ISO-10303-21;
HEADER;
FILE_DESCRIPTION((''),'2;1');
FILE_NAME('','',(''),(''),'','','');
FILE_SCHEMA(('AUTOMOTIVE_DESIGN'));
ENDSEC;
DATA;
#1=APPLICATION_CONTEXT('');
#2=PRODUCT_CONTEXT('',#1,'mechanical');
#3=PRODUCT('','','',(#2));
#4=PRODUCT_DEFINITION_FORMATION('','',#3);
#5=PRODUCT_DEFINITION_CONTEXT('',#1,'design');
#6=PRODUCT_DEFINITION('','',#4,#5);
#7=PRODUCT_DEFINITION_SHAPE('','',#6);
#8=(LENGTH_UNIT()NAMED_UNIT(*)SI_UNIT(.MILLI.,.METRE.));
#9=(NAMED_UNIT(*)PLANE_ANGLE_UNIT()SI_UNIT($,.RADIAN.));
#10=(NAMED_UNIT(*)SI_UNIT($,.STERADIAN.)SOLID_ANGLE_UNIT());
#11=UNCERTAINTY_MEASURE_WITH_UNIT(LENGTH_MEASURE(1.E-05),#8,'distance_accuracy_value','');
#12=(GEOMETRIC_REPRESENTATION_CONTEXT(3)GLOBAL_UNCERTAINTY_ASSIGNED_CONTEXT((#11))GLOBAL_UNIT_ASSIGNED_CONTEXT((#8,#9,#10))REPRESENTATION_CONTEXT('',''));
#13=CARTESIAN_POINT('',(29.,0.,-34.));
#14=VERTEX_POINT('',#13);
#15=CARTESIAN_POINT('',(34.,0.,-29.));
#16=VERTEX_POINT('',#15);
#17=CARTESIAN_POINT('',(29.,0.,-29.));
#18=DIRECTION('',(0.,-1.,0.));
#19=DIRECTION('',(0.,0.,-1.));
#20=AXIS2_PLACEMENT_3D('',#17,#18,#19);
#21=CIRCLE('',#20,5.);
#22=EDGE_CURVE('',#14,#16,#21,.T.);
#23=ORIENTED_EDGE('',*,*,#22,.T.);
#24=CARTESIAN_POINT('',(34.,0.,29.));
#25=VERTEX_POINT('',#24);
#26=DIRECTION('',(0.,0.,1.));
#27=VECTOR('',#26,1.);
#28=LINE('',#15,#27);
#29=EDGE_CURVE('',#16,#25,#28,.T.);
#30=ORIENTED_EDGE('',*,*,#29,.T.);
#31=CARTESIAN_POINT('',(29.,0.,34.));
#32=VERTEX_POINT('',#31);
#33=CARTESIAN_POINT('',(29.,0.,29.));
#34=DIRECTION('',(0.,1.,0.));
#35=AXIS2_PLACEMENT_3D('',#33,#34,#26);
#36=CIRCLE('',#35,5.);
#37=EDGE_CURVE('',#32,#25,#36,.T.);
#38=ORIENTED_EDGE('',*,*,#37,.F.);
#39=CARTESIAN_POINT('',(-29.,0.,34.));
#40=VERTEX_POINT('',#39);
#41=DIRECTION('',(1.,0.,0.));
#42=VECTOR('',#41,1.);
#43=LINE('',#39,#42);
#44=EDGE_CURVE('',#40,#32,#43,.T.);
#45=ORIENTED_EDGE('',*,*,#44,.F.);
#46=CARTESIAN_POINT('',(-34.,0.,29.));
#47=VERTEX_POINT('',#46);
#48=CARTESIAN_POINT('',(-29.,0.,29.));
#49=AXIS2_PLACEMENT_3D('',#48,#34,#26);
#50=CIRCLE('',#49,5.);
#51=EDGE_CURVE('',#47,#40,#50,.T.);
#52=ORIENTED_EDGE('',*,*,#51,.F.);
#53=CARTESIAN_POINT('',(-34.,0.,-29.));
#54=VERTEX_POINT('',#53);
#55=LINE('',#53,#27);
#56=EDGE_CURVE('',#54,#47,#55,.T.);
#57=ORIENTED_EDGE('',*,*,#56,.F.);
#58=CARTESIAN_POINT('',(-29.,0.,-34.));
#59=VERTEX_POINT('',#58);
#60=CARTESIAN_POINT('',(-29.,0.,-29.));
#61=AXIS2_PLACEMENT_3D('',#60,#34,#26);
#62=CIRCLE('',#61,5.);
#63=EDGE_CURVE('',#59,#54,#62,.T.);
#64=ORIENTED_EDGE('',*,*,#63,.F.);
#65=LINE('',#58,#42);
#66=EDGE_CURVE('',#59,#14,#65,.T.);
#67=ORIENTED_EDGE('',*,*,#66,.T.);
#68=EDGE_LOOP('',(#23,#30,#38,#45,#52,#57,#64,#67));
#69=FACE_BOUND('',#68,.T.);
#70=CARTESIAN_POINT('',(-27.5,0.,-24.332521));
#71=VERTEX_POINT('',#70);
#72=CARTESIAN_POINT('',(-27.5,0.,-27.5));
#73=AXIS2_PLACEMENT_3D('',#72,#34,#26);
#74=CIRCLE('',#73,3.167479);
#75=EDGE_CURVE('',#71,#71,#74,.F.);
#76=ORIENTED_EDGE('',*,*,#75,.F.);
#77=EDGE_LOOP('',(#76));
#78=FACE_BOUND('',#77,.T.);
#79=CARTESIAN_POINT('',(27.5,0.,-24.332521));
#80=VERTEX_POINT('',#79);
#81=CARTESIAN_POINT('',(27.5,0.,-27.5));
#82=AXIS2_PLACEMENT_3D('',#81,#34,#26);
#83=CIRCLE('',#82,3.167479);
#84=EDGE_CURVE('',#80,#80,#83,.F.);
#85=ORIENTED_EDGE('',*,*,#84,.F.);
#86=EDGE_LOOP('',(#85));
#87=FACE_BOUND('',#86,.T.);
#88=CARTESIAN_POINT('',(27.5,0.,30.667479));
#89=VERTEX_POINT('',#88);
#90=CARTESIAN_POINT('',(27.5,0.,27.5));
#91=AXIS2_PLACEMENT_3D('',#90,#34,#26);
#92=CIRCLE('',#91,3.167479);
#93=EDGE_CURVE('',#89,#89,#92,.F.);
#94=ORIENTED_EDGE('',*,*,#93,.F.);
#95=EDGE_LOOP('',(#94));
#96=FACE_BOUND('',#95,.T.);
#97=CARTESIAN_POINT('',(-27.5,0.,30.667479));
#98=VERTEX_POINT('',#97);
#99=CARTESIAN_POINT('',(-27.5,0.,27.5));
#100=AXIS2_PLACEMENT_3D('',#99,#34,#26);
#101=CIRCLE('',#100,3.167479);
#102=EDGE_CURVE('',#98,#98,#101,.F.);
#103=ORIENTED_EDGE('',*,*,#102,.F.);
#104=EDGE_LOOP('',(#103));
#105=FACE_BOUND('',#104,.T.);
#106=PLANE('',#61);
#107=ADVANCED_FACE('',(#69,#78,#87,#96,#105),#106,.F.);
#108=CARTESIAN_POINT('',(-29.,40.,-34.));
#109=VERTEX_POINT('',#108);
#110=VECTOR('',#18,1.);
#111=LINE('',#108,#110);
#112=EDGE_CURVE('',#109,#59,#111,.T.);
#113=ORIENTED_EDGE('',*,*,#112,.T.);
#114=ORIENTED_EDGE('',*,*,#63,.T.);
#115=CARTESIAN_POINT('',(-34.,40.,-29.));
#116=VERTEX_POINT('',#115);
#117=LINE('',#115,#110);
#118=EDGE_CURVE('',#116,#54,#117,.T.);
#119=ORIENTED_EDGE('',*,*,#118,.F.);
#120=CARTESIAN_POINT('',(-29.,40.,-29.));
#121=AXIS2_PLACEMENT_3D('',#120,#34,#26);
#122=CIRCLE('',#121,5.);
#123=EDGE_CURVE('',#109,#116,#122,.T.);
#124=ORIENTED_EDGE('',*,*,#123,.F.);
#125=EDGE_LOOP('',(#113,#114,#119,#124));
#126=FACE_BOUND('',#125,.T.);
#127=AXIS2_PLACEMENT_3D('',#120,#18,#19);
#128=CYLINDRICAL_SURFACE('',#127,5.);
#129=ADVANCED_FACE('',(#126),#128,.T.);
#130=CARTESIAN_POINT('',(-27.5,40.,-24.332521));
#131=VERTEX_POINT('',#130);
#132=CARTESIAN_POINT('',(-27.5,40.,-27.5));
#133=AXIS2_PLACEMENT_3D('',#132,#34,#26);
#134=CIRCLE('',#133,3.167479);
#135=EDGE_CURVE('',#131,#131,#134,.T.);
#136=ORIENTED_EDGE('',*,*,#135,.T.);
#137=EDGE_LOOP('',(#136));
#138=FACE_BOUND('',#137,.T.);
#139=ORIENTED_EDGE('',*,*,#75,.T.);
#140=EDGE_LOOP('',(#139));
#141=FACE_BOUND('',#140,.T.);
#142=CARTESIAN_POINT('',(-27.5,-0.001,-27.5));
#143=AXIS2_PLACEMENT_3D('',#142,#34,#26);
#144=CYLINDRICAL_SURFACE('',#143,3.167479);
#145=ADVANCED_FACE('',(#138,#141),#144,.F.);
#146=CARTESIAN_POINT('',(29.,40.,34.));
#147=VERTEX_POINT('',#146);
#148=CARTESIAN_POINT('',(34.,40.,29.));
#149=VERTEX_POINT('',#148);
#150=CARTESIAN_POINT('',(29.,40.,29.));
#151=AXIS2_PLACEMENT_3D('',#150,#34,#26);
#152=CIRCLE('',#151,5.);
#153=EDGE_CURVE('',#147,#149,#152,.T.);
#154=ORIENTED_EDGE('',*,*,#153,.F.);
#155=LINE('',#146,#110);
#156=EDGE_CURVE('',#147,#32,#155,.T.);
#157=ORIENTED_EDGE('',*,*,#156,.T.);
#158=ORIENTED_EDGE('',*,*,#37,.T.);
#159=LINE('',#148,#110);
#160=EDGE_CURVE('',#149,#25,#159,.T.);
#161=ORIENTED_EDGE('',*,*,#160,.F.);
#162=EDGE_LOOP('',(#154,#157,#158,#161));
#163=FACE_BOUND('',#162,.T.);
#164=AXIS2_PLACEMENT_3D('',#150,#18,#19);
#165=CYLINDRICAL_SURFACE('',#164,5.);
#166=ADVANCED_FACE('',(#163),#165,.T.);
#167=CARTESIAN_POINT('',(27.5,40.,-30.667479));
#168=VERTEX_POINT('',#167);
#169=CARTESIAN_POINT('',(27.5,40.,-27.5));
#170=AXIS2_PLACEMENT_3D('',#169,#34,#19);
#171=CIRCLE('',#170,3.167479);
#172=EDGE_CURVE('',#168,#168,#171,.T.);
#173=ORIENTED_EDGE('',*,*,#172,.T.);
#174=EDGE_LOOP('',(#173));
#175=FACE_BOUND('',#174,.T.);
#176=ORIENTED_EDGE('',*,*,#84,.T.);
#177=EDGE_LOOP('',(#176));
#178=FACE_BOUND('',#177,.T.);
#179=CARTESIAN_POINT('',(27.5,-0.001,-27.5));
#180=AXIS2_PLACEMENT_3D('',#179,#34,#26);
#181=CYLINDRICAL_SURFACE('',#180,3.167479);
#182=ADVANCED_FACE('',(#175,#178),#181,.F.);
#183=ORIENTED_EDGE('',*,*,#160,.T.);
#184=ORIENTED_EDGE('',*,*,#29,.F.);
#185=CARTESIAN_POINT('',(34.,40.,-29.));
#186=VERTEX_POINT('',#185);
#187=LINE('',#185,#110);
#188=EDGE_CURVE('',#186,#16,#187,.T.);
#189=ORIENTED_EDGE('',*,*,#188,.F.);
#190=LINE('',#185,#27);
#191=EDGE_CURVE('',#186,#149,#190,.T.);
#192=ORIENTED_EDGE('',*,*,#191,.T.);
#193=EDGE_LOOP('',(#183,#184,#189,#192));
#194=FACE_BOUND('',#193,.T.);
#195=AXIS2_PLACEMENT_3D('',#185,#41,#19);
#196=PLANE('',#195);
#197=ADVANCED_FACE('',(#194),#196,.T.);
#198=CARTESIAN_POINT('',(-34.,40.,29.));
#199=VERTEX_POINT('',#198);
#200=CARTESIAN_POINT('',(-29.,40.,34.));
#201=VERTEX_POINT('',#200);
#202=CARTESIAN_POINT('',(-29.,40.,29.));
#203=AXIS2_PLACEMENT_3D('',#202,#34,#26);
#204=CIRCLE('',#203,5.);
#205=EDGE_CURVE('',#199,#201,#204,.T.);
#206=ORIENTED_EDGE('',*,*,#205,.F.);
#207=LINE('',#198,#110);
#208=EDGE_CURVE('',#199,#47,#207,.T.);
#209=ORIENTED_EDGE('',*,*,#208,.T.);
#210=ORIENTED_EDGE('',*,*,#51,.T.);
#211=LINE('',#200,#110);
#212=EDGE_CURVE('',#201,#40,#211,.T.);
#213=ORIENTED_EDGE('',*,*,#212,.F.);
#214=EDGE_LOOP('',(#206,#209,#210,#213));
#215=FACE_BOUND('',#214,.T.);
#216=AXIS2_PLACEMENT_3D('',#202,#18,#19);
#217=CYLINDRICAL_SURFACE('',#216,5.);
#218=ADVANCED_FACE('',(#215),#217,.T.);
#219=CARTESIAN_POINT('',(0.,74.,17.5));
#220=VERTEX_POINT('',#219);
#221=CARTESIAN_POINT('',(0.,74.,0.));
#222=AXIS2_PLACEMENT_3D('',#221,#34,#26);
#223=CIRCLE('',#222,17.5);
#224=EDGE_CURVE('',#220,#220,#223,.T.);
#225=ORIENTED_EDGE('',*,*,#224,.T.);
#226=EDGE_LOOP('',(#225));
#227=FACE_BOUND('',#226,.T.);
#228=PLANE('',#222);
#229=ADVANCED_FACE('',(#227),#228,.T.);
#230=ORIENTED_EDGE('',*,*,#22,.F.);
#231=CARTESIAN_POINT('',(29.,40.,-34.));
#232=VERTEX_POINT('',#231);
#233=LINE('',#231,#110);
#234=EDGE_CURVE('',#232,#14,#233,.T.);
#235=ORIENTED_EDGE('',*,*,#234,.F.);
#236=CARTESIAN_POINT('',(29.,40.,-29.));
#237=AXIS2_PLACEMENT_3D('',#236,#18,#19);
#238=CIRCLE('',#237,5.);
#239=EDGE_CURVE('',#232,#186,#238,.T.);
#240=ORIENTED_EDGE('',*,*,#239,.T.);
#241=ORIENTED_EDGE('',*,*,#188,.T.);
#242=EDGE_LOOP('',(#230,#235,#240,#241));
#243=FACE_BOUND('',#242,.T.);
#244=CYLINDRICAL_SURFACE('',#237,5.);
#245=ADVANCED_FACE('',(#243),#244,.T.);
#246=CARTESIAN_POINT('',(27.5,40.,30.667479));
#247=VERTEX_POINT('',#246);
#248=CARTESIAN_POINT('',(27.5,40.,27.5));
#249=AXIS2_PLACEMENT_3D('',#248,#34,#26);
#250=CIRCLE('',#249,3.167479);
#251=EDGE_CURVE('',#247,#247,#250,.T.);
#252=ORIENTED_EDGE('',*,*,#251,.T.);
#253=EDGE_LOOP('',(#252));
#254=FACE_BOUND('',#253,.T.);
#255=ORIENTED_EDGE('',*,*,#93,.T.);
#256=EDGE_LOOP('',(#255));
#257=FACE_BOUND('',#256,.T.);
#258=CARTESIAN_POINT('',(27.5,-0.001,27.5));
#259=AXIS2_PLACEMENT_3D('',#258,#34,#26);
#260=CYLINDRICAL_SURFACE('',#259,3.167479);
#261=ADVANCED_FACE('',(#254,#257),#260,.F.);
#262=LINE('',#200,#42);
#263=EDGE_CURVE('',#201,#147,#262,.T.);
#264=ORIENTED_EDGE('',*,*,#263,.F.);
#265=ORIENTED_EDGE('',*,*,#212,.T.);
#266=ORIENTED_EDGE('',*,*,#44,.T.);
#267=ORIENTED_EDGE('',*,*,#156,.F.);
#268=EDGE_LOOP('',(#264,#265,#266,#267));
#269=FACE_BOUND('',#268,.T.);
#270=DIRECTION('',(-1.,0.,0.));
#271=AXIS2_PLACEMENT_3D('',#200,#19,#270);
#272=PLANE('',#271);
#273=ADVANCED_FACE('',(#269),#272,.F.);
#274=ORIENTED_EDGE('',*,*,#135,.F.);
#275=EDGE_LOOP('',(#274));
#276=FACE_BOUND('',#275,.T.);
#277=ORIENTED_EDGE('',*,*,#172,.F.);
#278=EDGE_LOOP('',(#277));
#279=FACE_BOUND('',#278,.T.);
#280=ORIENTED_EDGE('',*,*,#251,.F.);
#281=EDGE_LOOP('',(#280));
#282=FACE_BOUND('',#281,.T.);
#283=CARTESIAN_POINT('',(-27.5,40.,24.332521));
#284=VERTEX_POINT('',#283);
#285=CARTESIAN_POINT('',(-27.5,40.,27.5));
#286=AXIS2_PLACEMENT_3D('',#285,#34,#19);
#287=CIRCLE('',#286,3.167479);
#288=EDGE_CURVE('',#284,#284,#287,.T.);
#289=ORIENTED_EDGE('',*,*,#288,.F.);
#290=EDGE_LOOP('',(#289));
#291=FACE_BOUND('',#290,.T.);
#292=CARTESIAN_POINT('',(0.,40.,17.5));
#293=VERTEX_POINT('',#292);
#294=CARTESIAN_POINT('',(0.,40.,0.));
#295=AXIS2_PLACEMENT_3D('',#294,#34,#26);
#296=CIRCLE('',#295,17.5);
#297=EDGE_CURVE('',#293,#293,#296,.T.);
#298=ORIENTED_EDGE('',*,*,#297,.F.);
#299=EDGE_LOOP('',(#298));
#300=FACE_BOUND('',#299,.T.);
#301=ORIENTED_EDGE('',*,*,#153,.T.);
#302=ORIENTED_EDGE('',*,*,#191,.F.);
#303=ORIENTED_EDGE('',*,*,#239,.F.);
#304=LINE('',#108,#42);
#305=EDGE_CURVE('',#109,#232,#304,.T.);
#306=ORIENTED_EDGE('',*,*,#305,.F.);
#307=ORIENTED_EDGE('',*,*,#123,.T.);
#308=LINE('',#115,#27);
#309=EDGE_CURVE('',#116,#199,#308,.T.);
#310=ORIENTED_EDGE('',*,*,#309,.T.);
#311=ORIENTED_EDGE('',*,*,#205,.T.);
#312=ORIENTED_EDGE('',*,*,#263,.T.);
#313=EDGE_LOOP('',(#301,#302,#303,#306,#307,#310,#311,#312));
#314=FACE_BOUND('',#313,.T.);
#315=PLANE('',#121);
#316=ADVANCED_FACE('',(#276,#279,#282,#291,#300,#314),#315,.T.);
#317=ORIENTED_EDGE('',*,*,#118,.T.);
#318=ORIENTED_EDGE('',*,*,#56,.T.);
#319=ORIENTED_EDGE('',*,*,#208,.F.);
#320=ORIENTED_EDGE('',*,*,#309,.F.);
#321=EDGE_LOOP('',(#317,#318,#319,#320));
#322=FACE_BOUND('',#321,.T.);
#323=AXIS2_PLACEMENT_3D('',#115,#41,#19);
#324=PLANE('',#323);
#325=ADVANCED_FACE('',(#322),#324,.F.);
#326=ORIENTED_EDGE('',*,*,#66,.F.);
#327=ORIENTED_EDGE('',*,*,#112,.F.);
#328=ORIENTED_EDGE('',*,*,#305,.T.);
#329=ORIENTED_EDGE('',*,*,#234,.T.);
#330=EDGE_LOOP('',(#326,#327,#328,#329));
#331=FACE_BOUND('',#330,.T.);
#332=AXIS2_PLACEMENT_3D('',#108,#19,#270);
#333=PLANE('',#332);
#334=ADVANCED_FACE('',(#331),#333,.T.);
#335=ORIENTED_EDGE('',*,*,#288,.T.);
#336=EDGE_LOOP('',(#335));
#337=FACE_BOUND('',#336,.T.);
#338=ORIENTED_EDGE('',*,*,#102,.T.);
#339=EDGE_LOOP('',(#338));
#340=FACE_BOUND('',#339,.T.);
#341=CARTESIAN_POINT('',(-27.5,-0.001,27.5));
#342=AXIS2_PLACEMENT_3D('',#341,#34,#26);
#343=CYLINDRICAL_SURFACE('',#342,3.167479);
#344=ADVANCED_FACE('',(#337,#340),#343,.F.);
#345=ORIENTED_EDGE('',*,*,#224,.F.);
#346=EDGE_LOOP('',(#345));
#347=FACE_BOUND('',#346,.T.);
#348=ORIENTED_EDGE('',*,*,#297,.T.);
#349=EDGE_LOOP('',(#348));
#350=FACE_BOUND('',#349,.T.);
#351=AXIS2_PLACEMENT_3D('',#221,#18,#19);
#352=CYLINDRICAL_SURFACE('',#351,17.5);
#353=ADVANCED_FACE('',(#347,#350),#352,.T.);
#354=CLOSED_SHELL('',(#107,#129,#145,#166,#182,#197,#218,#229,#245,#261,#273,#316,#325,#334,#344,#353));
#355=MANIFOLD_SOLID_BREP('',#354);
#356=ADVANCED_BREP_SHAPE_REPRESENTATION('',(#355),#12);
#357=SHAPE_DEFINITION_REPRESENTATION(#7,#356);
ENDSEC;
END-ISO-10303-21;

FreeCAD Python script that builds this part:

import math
import FreeCAD as App
import Part
import Sketcher
from FreeCAD import Vector
Q = App.Units.Quantity

doc = App.newDocument("Part")
body = doc.addObject("PartDesign::Body", "Body")

sketch1 = doc.addObject("Sketcher::SketchObject", "Sketch")
body.addObject(sketch1)
sketch1.AttachmentSupport = (doc.XZ_Plane, [""])
sketch1.MapMode = "FlatFace"
sketch1.addGeometry([
    Part.LineSegment(Vector(29, -34, 0), Vector(-29, -34, 0)),
    Part.ArcOfCircle(Part.Circle(Vector(-29, -29, 0), Vector(0, 0, 1), 5), math.radians(180), math.radians(270)),
    Part.LineSegment(Vector(-34, -29, 0), Vector(-34, 29, 0)),
    Part.ArcOfCircle(Part.Circle(Vector(-29, 29, 0), Vector(0, 0, 1), 5), math.radians(90), math.radians(180)),
    Part.LineSegment(Vector(-29, 34, 0), Vector(29, 34, 0)),
    Part.ArcOfCircle(Part.Circle(Vector(29, 29, 0), Vector(0, 0, 1), 5), math.radians(0), math.radians(90)),
    Part.LineSegment(Vector(34, 29, 0), Vector(34, -29, 0)),
    Part.ArcOfCircle(Part.Circle(Vector(29, -29, 0), Vector(0, 0, 1), 5), math.radians(-90), math.radians(0)),
], False)
sketch1.addConstraint([
    Sketcher.Constraint("Tangent", 0, 2, 1, 2),
    Sketcher.Constraint("Tangent", 1, 1, 2, 1),
    Sketcher.Constraint("Tangent", 2, 2, 3, 2),
    Sketcher.Constraint("Tangent", 3, 1, 4, 1),
    Sketcher.Constraint("Tangent", 4, 2, 5, 2),
    Sketcher.Constraint("Tangent", 5, 1, 6, 1),
    Sketcher.Constraint("Tangent", 6, 2, 7, 2),
    Sketcher.Constraint("Tangent", 7, 1, 0, 1),
    Sketcher.Constraint("Horizontal", 0),
    Sketcher.Constraint("Vertical", 2),
    Sketcher.Constraint("Horizontal", 4),
    Sketcher.Constraint("Vertical", 6),
    Sketcher.Constraint("Equal", 1, 3),
    Sketcher.Constraint("Equal", 3, 5),
    Sketcher.Constraint("Equal", 5, 7),
    Sketcher.Constraint("Symmetric", 1, 3, 5, 3, -1, 1),
    Sketcher.Constraint("Equal", 4, 2),
    Sketcher.Constraint("Radius", 1, Q("5 mm")),
    Sketcher.Constraint("DistanceX", 0, 2, 0, 1, Q("58 mm")),
])
pad1 = doc.addObject("PartDesign::Pad", "Pad")
body.addObject(pad1)
pad1.Profile = sketch1
pad1.Length = 40
pad1.Reversed = True

sketch2 = doc.addObject("Sketcher::SketchObject", "Sketch001")
body.addObject(sketch2)
sketch2.AttachmentSupport = (doc.XZ_Plane, [""])
sketch2.MapMode = "FlatFace"
sketch2.AttachmentOffset = App.Placement(Vector(0, 0, -40), App.Rotation())
sketch2.addGeometry(Part.Circle(Vector(0, 0, 0), Vector(0, 0, 1), 18), False)
sketch2.addConstraint([
    Sketcher.Constraint("Coincident", 0, 3, -1, 1),
    Sketcher.Constraint("Diameter", 0, Q("35 mm")),
])
pad2 = doc.addObject("PartDesign::Pad", "Pad001")
body.addObject(pad2)
pad2.Profile = sketch2
pad2.Length = 34
pad2.Reversed = True

sketch3 = doc.addObject("Sketcher::SketchObject", "Sketch002")
body.addObject(sketch3)
sketch3.AttachmentSupport = (doc.XZ_Plane, [""])
sketch3.MapMode = "FlatFace"
sketch3.AttachmentOffset = App.Placement(Vector(0, 0, -40), App.Rotation())
sketch3.addGeometry(Part.Circle(Vector(-27.5, -27.5, 0), Vector(0, 0, 1), 3.2), False)
sketch3.addConstraint([
    Sketcher.Constraint("DistanceX", 0, 3, -1, 1, Q("27.5 mm")),
    Sketcher.Constraint("DistanceY", 0, 3, -1, 1, Q("27.5 mm")),
    Sketcher.Constraint("Diameter", 0, Q("6.334959 mm")),
])
pocket1 = doc.addObject("PartDesign::Pocket", "Pocket")
body.addObject(pocket1)
pocket1.Profile = sketch3
pocket1.Type = "UpToFirst"
pocket1.Reversed = True

sketch4 = doc.addObject("Sketcher::SketchObject", "Sketch003")
body.addObject(sketch4)
sketch4.AttachmentSupport = (doc.XZ_Plane, [""])
sketch4.MapMode = "FlatFace"
sketch4.AttachmentOffset = App.Placement(Vector(0, 0, -40), App.Rotation())
sketch4.addGeometry(Part.Circle(Vector(-27.5, 27.5, 0), Vector(0, 0, 1), 3.2), False)
sketch4.addConstraint([
    Sketcher.Constraint("DistanceX", 0, 3, -1, 1, Q("27.5 mm")),
    Sketcher.Constraint("DistanceY", -1, 1, 0, 3, Q("27.5 mm")),
    Sketcher.Constraint("Diameter", 0, Q("6.334959 mm")),
])
pocket2 = doc.addObject("PartDesign::Pocket", "Pocket001")
body.addObject(pocket2)
pocket2.Profile = sketch4
pocket2.Type = "UpToFirst"
pocket2.Reversed = True

sketch5 = doc.addObject("Sketcher::SketchObject", "Sketch004")
body.addObject(sketch5)
sketch5.AttachmentSupport = (doc.XZ_Plane, [""])
sketch5.MapMode = "FlatFace"
sketch5.AttachmentOffset = App.Placement(Vector(0, 0, -40), App.Rotation())
sketch5.addGeometry(Part.Circle(Vector(27.5, 27.5, 0), Vector(0, 0, 1), 3.2), False)
sketch5.addConstraint([
    Sketcher.Constraint("DistanceX", -1, 1, 0, 3, Q("27.5 mm")),
    Sketcher.Constraint("DistanceY", -1, 1, 0, 3, Q("27.5 mm")),
    Sketcher.Constraint("Diameter", 0, Q("6.334959 mm")),
])
pocket3 = doc.addObject("PartDesign::Pocket", "Pocket002")
body.addObject(pocket3)
pocket3.Profile = sketch5
pocket3.Type = "UpToFirst"
pocket3.Reversed = True

sketch6 = doc.addObject("Sketcher::SketchObject", "Sketch005")
body.addObject(sketch6)
sketch6.AttachmentSupport = (doc.XZ_Plane, [""])
sketch6.MapMode = "FlatFace"
sketch6.AttachmentOffset = App.Placement(Vector(0, 0, -40), App.Rotation())
sketch6.addGeometry(Part.Circle(Vector(27.5, -27.5, 0), Vector(0, 0, 1), 3.2), False)
sketch6.addConstraint([
    Sketcher.Constraint("DistanceX", -1, 1, 0, 3, Q("27.5 mm")),
    Sketcher.Constraint("DistanceY", 0, 3, -1, 1, Q("27.5 mm")),
    Sketcher.Constraint("Diameter", 0, Q("6.334959 mm")),
])
pocket4 = doc.addObject("PartDesign::Pocket", "Pocket003")
body.addObject(pocket4)
pocket4.Profile = sketch6
pocket4.Type = "UpToFirst"
pocket4.Reversed = True

doc.recompute()
